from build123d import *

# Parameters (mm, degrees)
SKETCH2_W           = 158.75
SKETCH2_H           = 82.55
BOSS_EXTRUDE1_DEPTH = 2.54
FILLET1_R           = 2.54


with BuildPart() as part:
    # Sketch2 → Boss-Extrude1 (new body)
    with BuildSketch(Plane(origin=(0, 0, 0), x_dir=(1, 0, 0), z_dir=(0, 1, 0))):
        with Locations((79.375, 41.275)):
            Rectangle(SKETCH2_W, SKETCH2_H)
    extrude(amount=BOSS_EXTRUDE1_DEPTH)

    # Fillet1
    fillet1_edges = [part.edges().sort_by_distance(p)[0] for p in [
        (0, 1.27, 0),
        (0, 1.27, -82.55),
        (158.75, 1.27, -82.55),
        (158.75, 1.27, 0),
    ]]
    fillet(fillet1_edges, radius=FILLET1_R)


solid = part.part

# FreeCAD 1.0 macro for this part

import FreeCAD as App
import Part
import Sketcher
Q = App.Units.Quantity


def edges_at(feature, points):
    """Names of the edges that pass closest to the given points."""
    edges = feature.Shape.Edges
    near = lambda p: min(range(len(edges)), key=lambda i: edges[i].distToShape(Part.Vertex(*p))[0])
    return sorted({f"Edge{near(p) + 1}" for p in points})

doc = App.newDocument("Part")
params = doc.addObject("Spreadsheet::Sheet", "Params")
for row, (alias, value) in enumerate([
    ("sketch1_width", "6.25 in"),
    ("sketch1_height", "3.25 in"),
    ("pad1_length", "0.1 in"),
    ("fillet_radius", "0.1 in"),
], start=1):
    params.set(f"A{row}", alias)
    params.set(f"B{row}", "=" + value)
    params.setAlias(f"B{row}", alias)

body = doc.addObject("PartDesign::Body", "Body")

sketch1 = body.newObject("Sketcher::SketchObject", "Sketch")
sketch1.AttachmentSupport = (doc.getObject("XZ_Plane"), [""])
sketch1.MapMode = "FlatFace"
sketch1.addGeometry([
    Part.LineSegment(App.Vector(0, -82.55, 0), App.Vector(0, 0, 0)),
    Part.LineSegment(App.Vector(0, 0, 0), App.Vector(158.75, 0, 0)),
    Part.LineSegment(App.Vector(158.75, 0, 0), App.Vector(158.75, -82.55, 0)),
    Part.LineSegment(App.Vector(158.75, -82.55, 0), App.Vector(0, -82.55, 0)),
], False)
sketch1.addConstraint([
    Sketcher.Constraint("Coincident", 0, 2, 1, 1),
    Sketcher.Constraint("Coincident", 1, 2, 2, 1),
    Sketcher.Constraint("Coincident", 2, 2, 3, 1),
    Sketcher.Constraint("Coincident", 3, 2, 0, 1),
    Sketcher.Constraint("Vertical", 0),
    Sketcher.Constraint("Horizontal", 1),
    Sketcher.Constraint("Vertical", 2),
    Sketcher.Constraint("Horizontal", 3),
    Sketcher.Constraint("Coincident", 0, 2, -1, 1),
    Sketcher.Constraint("DistanceX", 1, 1, 1, 2, Q("6.25 in")),
    Sketcher.Constraint("DistanceY", 0, 1, 0, 2, Q("3.25 in")),
])
sketch1.setExpression("Constraints[9]", "Params.sketch1_width")
sketch1.setExpression("Constraints[10]", "Params.sketch1_height")
pad1 = body.newObject("PartDesign::Pad", "Pad")
pad1.Profile = sketch1
pad1.setExpression("Length", "Params.pad1_length")
pad1.Reversed = True
doc.recompute()

fillet = body.newObject("PartDesign::Fillet", "Fillet")
fillet.Base = (pad1, edges_at(pad1, [
    (0, 1.27, 0),
    (0, 1.27, -82.55),
    (158.75, 1.27, -82.55),
    (158.75, 1.27, 0),
]))
fillet.setExpression("Radius", "Params.fillet_radius")

doc.recompute()
